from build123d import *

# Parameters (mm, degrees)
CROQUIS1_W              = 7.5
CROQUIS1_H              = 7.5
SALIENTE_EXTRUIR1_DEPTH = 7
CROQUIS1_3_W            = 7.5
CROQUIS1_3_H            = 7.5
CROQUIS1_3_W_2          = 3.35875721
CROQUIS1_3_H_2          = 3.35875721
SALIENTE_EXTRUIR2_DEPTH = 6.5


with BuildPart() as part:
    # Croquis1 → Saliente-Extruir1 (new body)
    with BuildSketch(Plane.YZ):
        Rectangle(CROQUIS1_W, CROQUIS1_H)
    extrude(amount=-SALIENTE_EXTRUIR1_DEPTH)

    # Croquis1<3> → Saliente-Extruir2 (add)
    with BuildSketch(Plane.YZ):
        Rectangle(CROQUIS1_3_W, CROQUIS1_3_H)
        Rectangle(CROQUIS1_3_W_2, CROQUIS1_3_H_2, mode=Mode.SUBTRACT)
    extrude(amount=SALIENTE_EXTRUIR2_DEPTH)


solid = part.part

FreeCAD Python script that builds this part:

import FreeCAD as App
import Part
import Sketcher
from FreeCAD import Vector
Q = App.Units.Quantity

doc = App.newDocument("Part")
body = doc.addObject("PartDesign::Body", "Body")

sketch1 = body.newObject("Sketcher::SketchObject", "Sketch")
sketch1.AttachmentSupport = (doc.getObject("YZ_Plane"), [""])
sketch1.MapMode = "FlatFace"
sketch1.addGeometry(Part.LineSegment(Vector(-4, 4, 0), Vector(-4, -4, 0)), False)
sketch1.addGeometry(Part.LineSegment(Vector(-4, -4, 0), Vector(4, -4, 0)), False)
sketch1.addGeometry(Part.LineSegment(Vector(4, -4, 0), Vector(4, 4, 0)), False)
sketch1.addGeometry(Part.LineSegment(Vector(4, 4, 0), Vector(-4, 4, 0)), False)
sketch1.addConstraint(Sketcher.Constraint("Coincident", 0, 2, 1, 1))
sketch1.addConstraint(Sketcher.Constraint("Coincident", 1, 2, 2, 1))
sketch1.addConstraint(Sketcher.Constraint("Coincident", 2, 2, 3, 1))
sketch1.addConstraint(Sketcher.Constraint("Coincident", 3, 2, 0, 1))
sketch1.addConstraint(Sketcher.Constraint("Vertical", 0))
sketch1.addConstraint(Sketcher.Constraint("Horizontal", 1))
sketch1.addConstraint(Sketcher.Constraint("Vertical", 2))
sketch1.addConstraint(Sketcher.Constraint("Horizontal", 3))
sketch1.addConstraint(Sketcher.Constraint("Symmetric", 0, 2, 2, 2, -1, 1))
sketch1.addConstraint(Sketcher.Constraint("Equal", 3, 0))
sketch1.addConstraint(Sketcher.Constraint("DistanceX", 1, 1, 1, 2, Q("7.5 mm")))
pad1 = body.newObject("PartDesign::Pad", "Pad")
pad1.Profile = sketch1
pad1.Length = 7
pad1.Reversed = True

sketch2 = body.newObject("Sketcher::SketchObject", "Sketch001")
sketch2.AttachmentSupport = (doc.getObject("YZ_Plane"), [""])
sketch2.MapMode = "FlatFace"
sketch2.addGeometry(Part.LineSegment(Vector(-3.8, 3.8, 0), Vector(-3.8, -3.8, 0)), False)
sketch2.addGeometry(Part.LineSegment(Vector(-3.8, -3.8, 0), Vector(3.8, -3.8, 0)), False)
sketch2.addGeometry(Part.LineSegment(Vector(3.8, -3.8, 0), Vector(3.8, 3.8, 0)), False)
sketch2.addGeometry(Part.LineSegment(Vector(3.8, 3.8, 0), Vector(-3.8, 3.8, 0)), False)
sketch2.addGeometry(Part.LineSegment(Vector(1.7, -1.7, 0), Vector(-1.7, -1.7, 0)), False)
sketch2.addGeometry(Part.LineSegment(Vector(-1.7, -1.7, 0), Vector(-1.7, 1.7, 0)), False)
sketch2.addGeometry(Part.LineSegment(Vector(-1.7, 1.7, 0), Vector(1.7, 1.7, 0)), False)
sketch2.addGeometry(Part.LineSegment(Vector(1.7, 1.7, 0), Vector(1.7, -1.7, 0)), False)
sketch2.addConstraint(Sketcher.Constraint("Coincident", 0, 2, 1, 1))
sketch2.addConstraint(Sketcher.Constraint("Coincident", 1, 2, 2, 1))
sketch2.addConstraint(Sketcher.Constraint("Coincident", 2, 2, 3, 1))
sketch2.addConstraint(Sketcher.Constraint("Coincident", 3, 2, 0, 1))
sketch2.addConstraint(Sketcher.Constraint("Coincident", 4, 2, 5, 1))
sketch2.addConstraint(Sketcher.Constraint("Coincident", 5, 2, 6, 1))
sketch2.addConstraint(Sketcher.Constraint("Coincident", 6, 2, 7, 1))
sketch2.addConstraint(Sketcher.Constraint("Coincident", 7, 2, 4, 1))
sketch2.addConstraint(Sketcher.Constraint("Vertical", 0))
sketch2.addConstraint(Sketcher.Constraint("Horizontal", 1))
sketch2.addConstraint(Sketcher.Constraint("Vertical", 2))
sketch2.addConstraint(Sketcher.Constraint("Horizontal", 3))
sketch2.addConstraint(Sketcher.Constraint("Horizontal", 4))
sketch2.addConstraint(Sketcher.Constraint("Vertical", 5))
sketch2.addConstraint(Sketcher.Constraint("Horizontal", 6))
sketch2.addConstraint(Sketcher.Constraint("Vertical", 7))
sketch2.addConstraint(Sketcher.Constraint("Symmetric", 0, 2, 2, 2, -1, 1))
sketch2.addConstraint(Sketcher.Constraint("Symmetric", 4, 2, 6, 2, -1, 1))
sketch2.addConstraint(Sketcher.Constraint("Equal", 3, 0))
sketch2.addConstraint(Sketcher.Constraint("Equal", 6, 5))
sketch2.addConstraint(Sketcher.Constraint("DistanceX", 1, 1, 1, 2, Q("7.5 mm")))
sketch2.addConstraint(Sketcher.Constraint("DistanceX", 4, 2, 4, 1, Q("3.358757 mm")))
pad2 = body.newObject("PartDesign::Pad", "Pad001")
pad2.Profile = sketch2
pad2.Length = 6.5

doc.recompute()
